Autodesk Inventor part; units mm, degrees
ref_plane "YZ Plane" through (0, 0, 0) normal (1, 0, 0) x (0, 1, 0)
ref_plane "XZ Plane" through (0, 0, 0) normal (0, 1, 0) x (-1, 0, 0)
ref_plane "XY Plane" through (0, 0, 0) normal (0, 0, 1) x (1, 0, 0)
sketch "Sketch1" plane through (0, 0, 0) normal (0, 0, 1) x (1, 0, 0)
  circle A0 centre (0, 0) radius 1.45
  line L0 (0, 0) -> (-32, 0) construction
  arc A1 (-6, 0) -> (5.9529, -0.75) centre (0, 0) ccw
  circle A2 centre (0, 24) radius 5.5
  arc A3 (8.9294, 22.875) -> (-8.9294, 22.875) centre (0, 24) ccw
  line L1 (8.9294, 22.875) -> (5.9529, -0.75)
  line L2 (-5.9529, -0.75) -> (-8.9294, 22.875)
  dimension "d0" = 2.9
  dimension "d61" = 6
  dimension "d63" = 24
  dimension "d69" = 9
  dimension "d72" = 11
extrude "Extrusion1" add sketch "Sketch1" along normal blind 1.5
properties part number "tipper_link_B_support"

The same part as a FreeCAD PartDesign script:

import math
import FreeCAD as App
import Part
import Sketcher
from FreeCAD import Vector
Q = App.Units.Quantity

doc = App.newDocument("Part")
body = doc.addObject("PartDesign::Body", "Body")

sketch1 = body.newObject("Sketcher::SketchObject", "Sketch")
sketch1.AttachmentSupport = (doc.getObject("XY_Plane"), [""])
sketch1.MapMode = "FlatFace"
sketch1.addGeometry([
    Part.LineSegment(Vector(-8.9, 22.9, 0), Vector(-6, -0.8, 0)),
    Part.ArcOfCircle(Part.Circle(Vector(0, 0, 0), Vector(0, 0, 1), 6), math.radians(-173), math.radians(-7)),
    Part.LineSegment(Vector(6, -0.8, 0), Vector(8.9, 22.9, 0)),
    Part.ArcOfCircle(Part.Circle(Vector(0, 24, 0), Vector(0, 0, 1), 9), math.radians(-7), math.radians(187)),
    Part.Circle(Vector(0, 0, 0), Vector(0, 0, 1), 1.4),
    Part.Circle(Vector(0, 24, 0), Vector(0, 0, 1), 5.5),
], False)
sketch1.addConstraint([
    Sketcher.Constraint("Tangent", 0, 2, 1, 1),
    Sketcher.Constraint("Tangent", 1, 2, 2, 1),
    Sketcher.Constraint("Tangent", 2, 2, 3, 1),
    Sketcher.Constraint("Tangent", 3, 2, 0, 1),
    Sketcher.Constraint("Coincident", 1, 3, -1, 1),
    Sketcher.Constraint("Coincident", 4, 3, -1, 1),
    Sketcher.Constraint("Coincident", 5, 3, 3, 3),
    Sketcher.Constraint("PointOnObject", 3, 3, -2),
    Sketcher.Constraint("Diameter", 5, Q("11 mm")),
    Sketcher.Constraint("Radius", 1, Q("6 mm")),
    Sketcher.Constraint("Radius", 3, Q("9 mm")),
    Sketcher.Constraint("Diameter", 4, Q("2.9 mm")),
    Sketcher.Constraint("DistanceY", -1, 1, 3, 3, Q("24 mm")),
])
pad1 = body.newObject("PartDesign::Pad", "Pad")
pad1.Profile = sketch1
pad1.Length = 1.5

doc.recompute()
